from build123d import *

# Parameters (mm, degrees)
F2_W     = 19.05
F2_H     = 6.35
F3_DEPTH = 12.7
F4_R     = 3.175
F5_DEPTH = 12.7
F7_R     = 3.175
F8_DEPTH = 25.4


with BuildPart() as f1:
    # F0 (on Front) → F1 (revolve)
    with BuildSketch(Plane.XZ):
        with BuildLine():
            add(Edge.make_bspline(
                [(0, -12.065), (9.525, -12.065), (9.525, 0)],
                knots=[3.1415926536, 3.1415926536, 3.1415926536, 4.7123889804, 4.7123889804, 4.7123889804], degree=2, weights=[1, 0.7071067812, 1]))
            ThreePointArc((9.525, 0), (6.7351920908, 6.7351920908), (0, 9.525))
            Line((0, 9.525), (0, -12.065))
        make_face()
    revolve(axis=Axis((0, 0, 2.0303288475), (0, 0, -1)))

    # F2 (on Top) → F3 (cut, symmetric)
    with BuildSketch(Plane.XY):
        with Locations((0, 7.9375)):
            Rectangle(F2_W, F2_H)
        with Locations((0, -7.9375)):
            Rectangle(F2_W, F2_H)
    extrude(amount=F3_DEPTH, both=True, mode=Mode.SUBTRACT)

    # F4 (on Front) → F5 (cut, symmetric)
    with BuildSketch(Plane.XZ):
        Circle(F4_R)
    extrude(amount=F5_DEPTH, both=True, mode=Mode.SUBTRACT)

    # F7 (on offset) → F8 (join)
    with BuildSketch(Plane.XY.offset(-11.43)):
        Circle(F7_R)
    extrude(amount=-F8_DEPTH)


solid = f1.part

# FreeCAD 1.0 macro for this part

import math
import FreeCAD as App
import Part
import Sketcher
Q = App.Units.Quantity

doc = App.newDocument("Part")
body = doc.addObject("PartDesign::Body", "Body")

sketch1 = body.newObject("Sketcher::SketchObject", "Sketch")
sketch1.AttachmentSupport = (doc.getObject("XZ_Plane"), [""])
sketch1.MapMode = "FlatFace"
sketch1.addGeometry([
    Part.BSplineCurve([App.Vector(0, -12.065, 0), App.Vector(9.525, -12.065, 0), App.Vector(9.525, 0, 0)], [3, 3], [3.141592654, 4.71238898], False, 2, [1, 0.707106781, 1], False),
    Part.ArcOfCircle(Part.Circle(App.Vector(0, 0, 0), App.Vector(0, 0, 1), 9.525), math.radians(0), math.radians(90)),
    Part.LineSegment(App.Vector(0, 9.525, 0), App.Vector(0, -12.065, 0)),
], False)
sketch1.addConstraint([
    Sketcher.Constraint("Block", 0),
    Sketcher.Constraint("Coincident", 0, 2, 1, 1),
    Sketcher.Constraint("Coincident", 1, 2, 2, 1),
    Sketcher.Constraint("Coincident", 2, 2, 0, 1),
    Sketcher.Constraint("Vertical", 2),
    Sketcher.Constraint("Coincident", 1, 3, -1, 1),
])
revolution = body.newObject("PartDesign::Revolution", "Revolution")
revolution.Profile = sketch1
revolution.ReferenceAxis = (sketch1, ["V_Axis"])
revolution.Angle = 360

sketch2 = body.newObject("Sketcher::SketchObject", "Sketch001")
sketch2.AttachmentSupport = (doc.getObject("XY_Plane"), [""])
sketch2.MapMode = "FlatFace"
sketch2.addGeometry([
    Part.LineSegment(App.Vector(-10, 11, 0), App.Vector(-10, 5, 0)),
    Part.LineSegment(App.Vector(-10, 5, 0), App.Vector(10, 5, 0)),
    Part.LineSegment(App.Vector(10, 5, 0), App.Vector(10, 11, 0)),
    Part.LineSegment(App.Vector(10, 11, 0), App.Vector(-10, 11, 0)),
    Part.LineSegment(App.Vector(-10, -5, 0), App.Vector(-10, -11, 0)),
    Part.LineSegment(App.Vector(-10, -11, 0), App.Vector(10, -11, 0)),
    Part.LineSegment(App.Vector(10, -11, 0), App.Vector(10, -5, 0)),
    Part.LineSegment(App.Vector(10, -5, 0), App.Vector(-10, -5, 0)),
], False)
sketch2.addConstraint([
    Sketcher.Constraint("Coincident", 0, 2, 1, 1),
    Sketcher.Constraint("Coincident", 1, 2, 2, 1),
    Sketcher.Constraint("Coincident", 2, 2, 3, 1),
    Sketcher.Constraint("Coincident", 3, 2, 0, 1),
    Sketcher.Constraint("Coincident", 4, 2, 5, 1),
    Sketcher.Constraint("Coincident", 5, 2, 6, 1),
    Sketcher.Constraint("Coincident", 6, 2, 7, 1),
    Sketcher.Constraint("Coincident", 7, 2, 4, 1),
    Sketcher.Constraint("Vertical", 0),
    Sketcher.Constraint("Horizontal", 1),
    Sketcher.Constraint("Vertical", 2),
    Sketcher.Constraint("Horizontal", 3),
    Sketcher.Constraint("Vertical", 4),
    Sketcher.Constraint("Horizontal", 5),
    Sketcher.Constraint("Vertical", 6),
    Sketcher.Constraint("Horizontal", 7),
    Sketcher.Constraint("Symmetric", 2, 2, 4, 2, -1, 1),
    Sketcher.Constraint("Symmetric", 0, 2, 6, 2, -1, 1),
    Sketcher.Constraint("Vertical", 3, 2, 4, 2),
    Sketcher.Constraint("DistanceX", 1, 1, 1, 2, Q("0.75 in")),
    Sketcher.Constraint("DistanceY", 0, 2, 0, 1, Q("0.25 in")),
    Sketcher.Constraint("DistanceY", -1, 1, 0, 2, Q("0.1875 in")),
])
pocket1 = body.newObject("PartDesign::Pocket", "Pocket")
pocket1.Profile = sketch2
pocket1.Length = Q("1 in")
pocket1.Midplane = True

sketch3 = body.newObject("Sketcher::SketchObject", "Sketch002")
sketch3.AttachmentSupport = (doc.getObject("XZ_Plane"), [""])
sketch3.MapMode = "FlatFace"
sketch3.addGeometry(Part.Circle(App.Vector(0, 0, 0), App.Vector(0, 0, 1), 3.2), False)
sketch3.addConstraint([
    Sketcher.Constraint("Coincident", 0, 3, -1, 1),
    Sketcher.Constraint("Diameter", 0, Q("0.25 in")),
])
pocket2 = body.newObject("PartDesign::Pocket", "Pocket001")
pocket2.Profile = sketch3
pocket2.Length = Q("1 in")
pocket2.Midplane = True

sketch4 = body.newObject("Sketcher::SketchObject", "Sketch003")
sketch4.AttachmentSupport = (doc.getObject("XY_Plane"), [""])
sketch4.MapMode = "FlatFace"
sketch4.AttachmentOffset = App.Placement(App.Vector(0, 0, -0.45 * 25.4), App.Rotation())
sketch4.addGeometry(Part.Circle(App.Vector(0, 0, 0), App.Vector(0, 0, 1), 3.2), False)
sketch4.addConstraint([
    Sketcher.Constraint("Coincident", 0, 3, -1, 1),
    Sketcher.Constraint("Diameter", 0, Q("0.25 in")),
])
pad1 = body.newObject("PartDesign::Pad", "Pad")
pad1.Profile = sketch4
pad1.Length = Q("1 in")
pad1.Reversed = True

doc.recompute()
